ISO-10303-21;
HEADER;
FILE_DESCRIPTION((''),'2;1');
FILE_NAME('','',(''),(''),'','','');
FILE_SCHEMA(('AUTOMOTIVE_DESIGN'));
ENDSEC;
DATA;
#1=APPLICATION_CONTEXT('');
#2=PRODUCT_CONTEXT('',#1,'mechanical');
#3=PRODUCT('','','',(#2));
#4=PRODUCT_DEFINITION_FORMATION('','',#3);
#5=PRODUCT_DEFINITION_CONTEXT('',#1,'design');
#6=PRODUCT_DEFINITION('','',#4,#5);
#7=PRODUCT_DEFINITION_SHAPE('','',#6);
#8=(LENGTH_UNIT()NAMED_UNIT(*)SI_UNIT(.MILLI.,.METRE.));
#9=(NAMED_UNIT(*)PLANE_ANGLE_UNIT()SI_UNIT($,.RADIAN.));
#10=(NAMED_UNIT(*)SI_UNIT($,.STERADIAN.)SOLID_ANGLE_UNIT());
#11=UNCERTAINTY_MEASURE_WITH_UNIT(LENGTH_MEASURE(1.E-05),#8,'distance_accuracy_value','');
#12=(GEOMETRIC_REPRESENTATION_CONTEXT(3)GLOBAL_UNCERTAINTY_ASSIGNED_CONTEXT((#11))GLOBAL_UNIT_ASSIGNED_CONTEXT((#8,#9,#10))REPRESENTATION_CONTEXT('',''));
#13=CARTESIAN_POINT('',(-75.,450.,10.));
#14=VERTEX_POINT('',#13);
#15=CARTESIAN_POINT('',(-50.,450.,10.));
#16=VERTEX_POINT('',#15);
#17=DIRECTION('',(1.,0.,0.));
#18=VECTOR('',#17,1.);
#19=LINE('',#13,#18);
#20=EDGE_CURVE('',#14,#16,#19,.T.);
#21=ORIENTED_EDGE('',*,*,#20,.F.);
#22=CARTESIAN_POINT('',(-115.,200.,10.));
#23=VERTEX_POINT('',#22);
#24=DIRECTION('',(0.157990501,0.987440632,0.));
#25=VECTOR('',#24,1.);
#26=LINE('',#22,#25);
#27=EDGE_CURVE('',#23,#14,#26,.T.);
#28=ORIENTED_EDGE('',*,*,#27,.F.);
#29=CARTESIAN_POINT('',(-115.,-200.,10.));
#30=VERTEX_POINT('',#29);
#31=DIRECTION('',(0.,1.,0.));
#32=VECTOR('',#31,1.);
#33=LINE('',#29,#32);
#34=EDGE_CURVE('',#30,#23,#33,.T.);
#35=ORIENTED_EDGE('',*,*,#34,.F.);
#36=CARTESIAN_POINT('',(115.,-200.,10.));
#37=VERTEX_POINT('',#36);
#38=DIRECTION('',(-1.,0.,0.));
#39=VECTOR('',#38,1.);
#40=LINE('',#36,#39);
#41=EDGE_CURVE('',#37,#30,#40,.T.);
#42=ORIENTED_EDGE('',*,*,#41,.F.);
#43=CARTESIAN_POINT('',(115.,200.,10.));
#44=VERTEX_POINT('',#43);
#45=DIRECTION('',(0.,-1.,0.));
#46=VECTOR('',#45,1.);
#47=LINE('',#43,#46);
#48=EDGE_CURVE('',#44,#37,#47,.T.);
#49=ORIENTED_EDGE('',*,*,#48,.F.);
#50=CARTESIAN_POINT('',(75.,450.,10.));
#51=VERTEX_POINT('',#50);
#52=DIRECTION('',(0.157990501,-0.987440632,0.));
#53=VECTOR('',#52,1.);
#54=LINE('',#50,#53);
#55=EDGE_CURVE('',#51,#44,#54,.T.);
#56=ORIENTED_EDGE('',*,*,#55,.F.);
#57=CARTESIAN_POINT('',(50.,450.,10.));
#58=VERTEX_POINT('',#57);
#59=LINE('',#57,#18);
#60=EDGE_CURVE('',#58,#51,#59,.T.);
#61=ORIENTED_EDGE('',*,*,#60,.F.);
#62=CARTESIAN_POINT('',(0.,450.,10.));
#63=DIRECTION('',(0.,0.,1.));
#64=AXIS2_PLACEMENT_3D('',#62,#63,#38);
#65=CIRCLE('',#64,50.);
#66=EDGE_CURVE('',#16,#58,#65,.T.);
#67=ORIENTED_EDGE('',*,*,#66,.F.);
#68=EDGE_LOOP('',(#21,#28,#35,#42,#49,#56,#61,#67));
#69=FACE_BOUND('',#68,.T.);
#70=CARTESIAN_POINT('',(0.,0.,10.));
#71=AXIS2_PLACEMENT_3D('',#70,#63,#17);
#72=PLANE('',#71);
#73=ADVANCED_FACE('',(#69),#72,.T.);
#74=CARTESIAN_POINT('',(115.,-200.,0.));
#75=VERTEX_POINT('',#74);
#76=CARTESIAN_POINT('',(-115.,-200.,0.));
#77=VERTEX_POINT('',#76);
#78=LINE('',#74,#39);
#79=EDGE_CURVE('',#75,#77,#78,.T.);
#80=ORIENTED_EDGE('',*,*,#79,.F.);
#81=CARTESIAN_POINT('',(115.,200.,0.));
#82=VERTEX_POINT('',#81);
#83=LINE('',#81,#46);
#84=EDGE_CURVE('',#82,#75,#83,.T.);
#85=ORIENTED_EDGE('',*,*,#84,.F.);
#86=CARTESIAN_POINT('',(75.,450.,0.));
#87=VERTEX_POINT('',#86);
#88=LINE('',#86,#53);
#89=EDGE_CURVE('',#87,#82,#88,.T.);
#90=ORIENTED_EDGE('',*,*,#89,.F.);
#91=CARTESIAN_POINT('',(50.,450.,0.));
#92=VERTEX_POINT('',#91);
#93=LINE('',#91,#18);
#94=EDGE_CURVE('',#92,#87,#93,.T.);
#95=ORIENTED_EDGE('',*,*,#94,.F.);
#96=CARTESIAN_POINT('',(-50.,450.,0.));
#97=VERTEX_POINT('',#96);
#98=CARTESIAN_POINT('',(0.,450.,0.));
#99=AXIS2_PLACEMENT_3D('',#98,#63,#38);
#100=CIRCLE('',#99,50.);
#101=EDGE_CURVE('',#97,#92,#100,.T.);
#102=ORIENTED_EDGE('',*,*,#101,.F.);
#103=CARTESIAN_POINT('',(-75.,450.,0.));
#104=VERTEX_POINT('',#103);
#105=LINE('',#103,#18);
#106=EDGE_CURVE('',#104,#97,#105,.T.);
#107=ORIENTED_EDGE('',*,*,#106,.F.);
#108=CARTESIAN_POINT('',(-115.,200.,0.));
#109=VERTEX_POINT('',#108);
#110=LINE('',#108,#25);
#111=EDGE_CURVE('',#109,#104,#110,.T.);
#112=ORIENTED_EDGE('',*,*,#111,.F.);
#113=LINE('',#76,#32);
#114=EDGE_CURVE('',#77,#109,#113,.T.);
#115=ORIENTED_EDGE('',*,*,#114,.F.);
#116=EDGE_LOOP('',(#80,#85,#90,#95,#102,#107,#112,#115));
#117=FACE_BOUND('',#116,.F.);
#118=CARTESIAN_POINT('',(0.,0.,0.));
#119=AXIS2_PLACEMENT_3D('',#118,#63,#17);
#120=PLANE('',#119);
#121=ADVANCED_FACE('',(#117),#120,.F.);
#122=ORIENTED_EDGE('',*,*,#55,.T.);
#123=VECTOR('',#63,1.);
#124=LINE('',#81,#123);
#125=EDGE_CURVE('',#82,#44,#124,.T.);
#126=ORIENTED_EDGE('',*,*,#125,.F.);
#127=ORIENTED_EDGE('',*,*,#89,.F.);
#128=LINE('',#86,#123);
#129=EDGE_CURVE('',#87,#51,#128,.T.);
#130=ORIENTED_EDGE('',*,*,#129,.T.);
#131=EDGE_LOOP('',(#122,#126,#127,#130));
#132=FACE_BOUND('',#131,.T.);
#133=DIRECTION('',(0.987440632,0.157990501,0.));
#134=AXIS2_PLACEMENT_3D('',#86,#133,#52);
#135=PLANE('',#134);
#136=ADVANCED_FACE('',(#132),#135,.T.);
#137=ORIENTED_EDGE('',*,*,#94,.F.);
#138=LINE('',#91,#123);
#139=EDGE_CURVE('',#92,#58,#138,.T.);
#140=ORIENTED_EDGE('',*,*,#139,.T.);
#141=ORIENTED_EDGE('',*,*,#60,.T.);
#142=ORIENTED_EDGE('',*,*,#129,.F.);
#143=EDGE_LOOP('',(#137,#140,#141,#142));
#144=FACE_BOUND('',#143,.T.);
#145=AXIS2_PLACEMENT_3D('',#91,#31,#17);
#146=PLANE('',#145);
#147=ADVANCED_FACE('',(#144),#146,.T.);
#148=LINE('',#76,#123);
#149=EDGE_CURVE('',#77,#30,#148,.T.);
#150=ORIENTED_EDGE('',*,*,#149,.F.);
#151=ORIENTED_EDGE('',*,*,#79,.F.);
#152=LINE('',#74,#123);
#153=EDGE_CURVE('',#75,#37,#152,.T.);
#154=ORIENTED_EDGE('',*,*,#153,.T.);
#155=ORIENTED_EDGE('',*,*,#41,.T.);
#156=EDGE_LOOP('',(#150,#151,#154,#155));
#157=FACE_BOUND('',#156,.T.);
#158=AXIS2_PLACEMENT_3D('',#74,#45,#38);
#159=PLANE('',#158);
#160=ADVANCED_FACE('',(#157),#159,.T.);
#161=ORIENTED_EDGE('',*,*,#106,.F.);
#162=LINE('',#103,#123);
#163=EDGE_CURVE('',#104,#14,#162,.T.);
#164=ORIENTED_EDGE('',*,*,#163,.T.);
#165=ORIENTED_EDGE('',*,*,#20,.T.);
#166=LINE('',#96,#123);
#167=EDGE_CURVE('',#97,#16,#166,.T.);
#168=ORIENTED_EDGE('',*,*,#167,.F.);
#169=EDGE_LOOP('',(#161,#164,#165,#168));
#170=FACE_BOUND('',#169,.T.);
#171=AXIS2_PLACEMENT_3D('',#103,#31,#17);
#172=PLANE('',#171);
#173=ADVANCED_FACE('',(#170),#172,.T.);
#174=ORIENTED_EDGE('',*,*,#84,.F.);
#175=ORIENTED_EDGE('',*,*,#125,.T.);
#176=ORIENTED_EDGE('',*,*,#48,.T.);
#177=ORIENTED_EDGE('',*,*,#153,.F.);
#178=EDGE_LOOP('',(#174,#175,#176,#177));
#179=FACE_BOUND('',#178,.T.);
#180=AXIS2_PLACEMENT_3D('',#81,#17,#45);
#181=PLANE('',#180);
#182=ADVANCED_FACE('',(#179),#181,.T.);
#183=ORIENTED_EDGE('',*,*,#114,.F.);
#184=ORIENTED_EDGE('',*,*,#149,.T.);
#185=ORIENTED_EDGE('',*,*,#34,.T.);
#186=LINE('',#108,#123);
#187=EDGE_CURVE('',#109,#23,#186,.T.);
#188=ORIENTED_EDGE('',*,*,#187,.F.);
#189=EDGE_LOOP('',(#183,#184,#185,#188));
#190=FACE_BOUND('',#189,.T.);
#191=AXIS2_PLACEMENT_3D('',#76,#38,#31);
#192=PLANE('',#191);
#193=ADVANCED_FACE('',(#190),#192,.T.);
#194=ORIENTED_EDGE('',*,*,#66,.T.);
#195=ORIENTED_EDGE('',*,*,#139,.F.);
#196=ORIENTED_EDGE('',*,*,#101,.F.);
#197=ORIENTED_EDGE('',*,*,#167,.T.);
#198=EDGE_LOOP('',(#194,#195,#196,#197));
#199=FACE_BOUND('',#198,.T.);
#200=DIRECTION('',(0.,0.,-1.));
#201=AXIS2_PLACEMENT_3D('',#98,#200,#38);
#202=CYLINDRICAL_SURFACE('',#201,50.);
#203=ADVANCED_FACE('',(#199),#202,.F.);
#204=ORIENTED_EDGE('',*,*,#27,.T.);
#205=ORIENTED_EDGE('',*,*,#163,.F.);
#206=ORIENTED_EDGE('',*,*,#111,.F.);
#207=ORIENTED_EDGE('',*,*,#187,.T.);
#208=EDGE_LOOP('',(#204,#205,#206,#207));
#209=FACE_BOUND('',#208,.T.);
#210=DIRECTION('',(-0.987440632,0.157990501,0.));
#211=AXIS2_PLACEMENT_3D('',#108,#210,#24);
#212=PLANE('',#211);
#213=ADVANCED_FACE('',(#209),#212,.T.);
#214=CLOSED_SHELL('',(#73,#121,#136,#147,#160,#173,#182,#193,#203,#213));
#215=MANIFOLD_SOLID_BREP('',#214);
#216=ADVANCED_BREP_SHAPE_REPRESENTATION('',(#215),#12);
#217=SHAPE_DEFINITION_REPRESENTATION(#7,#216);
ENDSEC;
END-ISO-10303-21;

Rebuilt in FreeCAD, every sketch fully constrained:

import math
import FreeCAD as App
import Part
import Sketcher
from FreeCAD import Vector

doc = App.newDocument("Part")
body = doc.addObject("PartDesign::Body", "Body")

# Sketch on XY plane
sketch1 = body.newObject("Sketcher::SketchObject", "Sketch")
sketch1.AttachmentSupport = (doc.getObject("XY_Plane"), [""])
sketch1.MapMode = "FlatFace"
sketch1.addGeometry([
    Part.LineSegment(Vector(115, -200, 0), Vector(115, 200, 0)),  # 0
    Part.LineSegment(Vector(115, 200, 0), Vector(75, 450, 0)),  # 1
    Part.LineSegment(Vector(75, 450, 0), Vector(50, 450, 0)),  # 2
    Part.ArcOfCircle(Part.Circle(Vector(0, 450, 0), Vector(0, 0, 1), 50), math.radians(180), math.radians(360)),  # 3
    Part.LineSegment(Vector(-50, 450, 0), Vector(-75, 450, 0)),  # 4
    Part.LineSegment(Vector(-75, 450, 0), Vector(-115, 200, 0)),  # 5
    Part.LineSegment(Vector(-115, 200, 0), Vector(-115, -200, 0)),  # 6
    Part.LineSegment(Vector(-115, -200, 0), Vector(115, -200, 0)),  # 7
], False)
sketch1.addConstraint([
    Sketcher.Constraint("Coincident", 0, 2, 1, 1),
    Sketcher.Constraint("Coincident", 1, 2, 2, 1),
    Sketcher.Constraint("Coincident", 2, 2, 3, 2),
    Sketcher.Constraint("Coincident", 3, 1, 4, 1),
    Sketcher.Constraint("Coincident", 4, 2, 5, 1),
    Sketcher.Constraint("Coincident", 5, 2, 6, 1),
    Sketcher.Constraint("Coincident", 6, 2, 7, 1),
    Sketcher.Constraint("Coincident", 7, 2, 0, 1),
    Sketcher.Constraint("Vertical", 0),
    Sketcher.Constraint("Horizontal", 2),
    Sketcher.Constraint("Horizontal", 4),
    Sketcher.Constraint("Vertical", 6),
    Sketcher.Constraint("Horizontal", 7),
    Sketcher.Constraint("Symmetric", 0, 2, 6, 2, -1, 1),
    Sketcher.Constraint("Symmetric", 2, 2, 3, 1, -2),
    Sketcher.Constraint("Horizontal", 3, 3, 1, 2),
    Sketcher.Constraint("Horizontal", 0, 2, 5, 2),
    Sketcher.Constraint("Equal", 2, 4),
    Sketcher.Constraint("Radius", 3, 50.0),
    Sketcher.Constraint("DistanceX", 2, 2, 2, 1, 25.0),
    Sketcher.Constraint("DistanceX", 7, 1, 7, 2, 230.0),
    Sketcher.Constraint("DistanceY", 0, 1, 0, 2, 400.0),
    Sketcher.Constraint("DistanceY", -1, 1, 3, 3, 450.0),
])
pad1 = body.newObject("PartDesign::Pad", "Pad")
pad1.Profile = sketch1
pad1.Length = 10

doc.recompute()
